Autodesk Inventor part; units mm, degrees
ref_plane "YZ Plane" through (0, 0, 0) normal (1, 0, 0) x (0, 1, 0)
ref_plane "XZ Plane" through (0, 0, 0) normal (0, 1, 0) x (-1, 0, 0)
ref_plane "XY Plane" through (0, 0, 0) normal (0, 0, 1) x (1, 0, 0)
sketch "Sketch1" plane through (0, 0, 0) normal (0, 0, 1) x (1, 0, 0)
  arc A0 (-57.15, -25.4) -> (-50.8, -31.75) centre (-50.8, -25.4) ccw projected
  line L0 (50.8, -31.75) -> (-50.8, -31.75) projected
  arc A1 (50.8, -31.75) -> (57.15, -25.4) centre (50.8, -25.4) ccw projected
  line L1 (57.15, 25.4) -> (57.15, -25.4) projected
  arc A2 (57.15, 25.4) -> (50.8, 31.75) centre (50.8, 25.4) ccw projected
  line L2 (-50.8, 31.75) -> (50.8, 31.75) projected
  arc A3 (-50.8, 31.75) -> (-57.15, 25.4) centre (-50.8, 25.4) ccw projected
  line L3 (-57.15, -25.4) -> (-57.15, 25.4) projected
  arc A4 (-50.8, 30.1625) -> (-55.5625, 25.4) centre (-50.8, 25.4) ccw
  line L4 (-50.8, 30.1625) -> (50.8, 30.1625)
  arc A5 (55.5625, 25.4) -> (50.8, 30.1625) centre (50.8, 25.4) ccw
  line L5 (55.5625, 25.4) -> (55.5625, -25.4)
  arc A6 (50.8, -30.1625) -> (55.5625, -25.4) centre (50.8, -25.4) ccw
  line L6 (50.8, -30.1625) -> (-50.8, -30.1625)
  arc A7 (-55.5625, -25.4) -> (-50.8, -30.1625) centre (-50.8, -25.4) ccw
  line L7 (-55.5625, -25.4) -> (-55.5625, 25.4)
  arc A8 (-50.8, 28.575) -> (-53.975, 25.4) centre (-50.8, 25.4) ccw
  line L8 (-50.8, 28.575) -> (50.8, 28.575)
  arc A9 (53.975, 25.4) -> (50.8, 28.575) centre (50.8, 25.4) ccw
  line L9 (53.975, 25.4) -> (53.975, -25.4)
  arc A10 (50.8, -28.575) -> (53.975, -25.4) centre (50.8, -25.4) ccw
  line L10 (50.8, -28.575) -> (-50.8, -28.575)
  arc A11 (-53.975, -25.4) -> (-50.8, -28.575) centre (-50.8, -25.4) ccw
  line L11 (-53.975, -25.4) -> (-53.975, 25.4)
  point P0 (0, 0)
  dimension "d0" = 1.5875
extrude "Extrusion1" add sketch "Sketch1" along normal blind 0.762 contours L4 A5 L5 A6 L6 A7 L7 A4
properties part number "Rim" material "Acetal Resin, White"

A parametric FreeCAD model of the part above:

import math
import FreeCAD as App
import Part
import Sketcher
Q = App.Units.Quantity

doc = App.newDocument("Part")
body = doc.addObject("PartDesign::Body", "Body")

# Sketch on XY plane
sketch1 = body.newObject("Sketcher::SketchObject", "Sketch")
sketch1.AttachmentSupport = (doc.getObject("XY_Plane"), [""])
sketch1.MapMode = "FlatFace"
sketch1.addGeometry(Part.LineSegment(App.Vector(50.8, 30.2, 0), App.Vector(-50.8, 30.2, 0)), False)
sketch1.addGeometry(Part.ArcOfCircle(Part.Circle(App.Vector(-50.8, 25.4, 0), App.Vector(0, 0, 1), 4.8), math.radians(90), math.radians(180)), False)
sketch1.addGeometry(Part.LineSegment(App.Vector(-55.6, 25.4, 0), App.Vector(-55.6, -25.4, 0)), False)
sketch1.addGeometry(Part.ArcOfCircle(Part.Circle(App.Vector(-50.8, -25.4, 0), App.Vector(0, 0, 1), 4.8), math.radians(180), math.radians(270)), False)
sketch1.addGeometry(Part.LineSegment(App.Vector(-50.8, -30.2, 0), App.Vector(50.8, -30.2, 0)), False)
sketch1.addGeometry(Part.ArcOfCircle(Part.Circle(App.Vector(50.8, -25.4, 0), App.Vector(0, 0, 1), 4.8), math.radians(-90), math.radians(0)), False)
sketch1.addGeometry(Part.LineSegment(App.Vector(55.6, -25.4, 0), App.Vector(55.6, 25.4, 0)), False)
sketch1.addGeometry(Part.ArcOfCircle(Part.Circle(App.Vector(50.8, 25.4, 0), App.Vector(0, 0, 1), 4.8), math.radians(0), math.radians(90)), False)
sketch1.addGeometry(Part.ArcOfCircle(Part.Circle(App.Vector(-50.8, 25.4, 0), App.Vector(0, 0, 1), 3.2), math.radians(90), math.radians(180)), False)
sketch1.addGeometry(Part.LineSegment(App.Vector(-50.8, 28.6, 0), App.Vector(50.8, 28.6, 0)), False)
sketch1.addGeometry(Part.ArcOfCircle(Part.Circle(App.Vector(50.8, 25.4, 0), App.Vector(0, 0, 1), 3.2), math.radians(0), math.radians(90)), False)
sketch1.addGeometry(Part.LineSegment(App.Vector(54, 25.4, 0), App.Vector(54, -25.4, 0)), False)
sketch1.addGeometry(Part.ArcOfCircle(Part.Circle(App.Vector(50.8, -25.4, 0), App.Vector(0, 0, 1), 3.2), math.radians(-90), math.radians(0)), False)
sketch1.addGeometry(Part.LineSegment(App.Vector(50.8, -28.6, 0), App.Vector(-50.8, -28.6, 0)), False)
sketch1.addGeometry(Part.ArcOfCircle(Part.Circle(App.Vector(-50.8, -25.4, 0), App.Vector(0, 0, 1), 3.2), math.radians(180), math.radians(270)), False)
sketch1.addGeometry(Part.LineSegment(App.Vector(-54, -25.4, 0), App.Vector(-54, 25.4, 0)), False)
sketch1.addConstraint(Sketcher.Constraint("Tangent", 0, 2, 1, 1))
sketch1.addConstraint(Sketcher.Constraint("Tangent", 1, 2, 2, 1))
sketch1.addConstraint(Sketcher.Constraint("Tangent", 2, 2, 3, 1))
sketch1.addConstraint(Sketcher.Constraint("Tangent", 3, 2, 4, 1))
sketch1.addConstraint(Sketcher.Constraint("Tangent", 4, 2, 5, 1))
sketch1.addConstraint(Sketcher.Constraint("Tangent", 5, 2, 6, 1))
sketch1.addConstraint(Sketcher.Constraint("Tangent", 6, 2, 7, 1))
sketch1.addConstraint(Sketcher.Constraint("Tangent", 7, 2, 0, 1))
sketch1.addConstraint(Sketcher.Constraint("Tangent", 8, 1, 9, 1))
sketch1.addConstraint(Sketcher.Constraint("Tangent", 9, 2, 10, 2))
sketch1.addConstraint(Sketcher.Constraint("Tangent", 10, 1, 11, 1))
sketch1.addConstraint(Sketcher.Constraint("Tangent", 11, 2, 12, 2))
sketch1.addConstraint(Sketcher.Constraint("Tangent", 12, 1, 13, 1))
sketch1.addConstraint(Sketcher.Constraint("Tangent", 13, 2, 14, 2))
sketch1.addConstraint(Sketcher.Constraint("Tangent", 14, 1, 15, 1))
sketch1.addConstraint(Sketcher.Constraint("Tangent", 15, 2, 8, 2))
sketch1.addConstraint(Sketcher.Constraint("Horizontal", 0))
sketch1.addConstraint(Sketcher.Constraint("Vertical", 2))
sketch1.addConstraint(Sketcher.Constraint("Horizontal", 4))
sketch1.addConstraint(Sketcher.Constraint("Vertical", 6))
sketch1.addConstraint(Sketcher.Constraint("Horizontal", 9))
sketch1.addConstraint(Sketcher.Constraint("Vertical", 11))
sketch1.addConstraint(Sketcher.Constraint("Horizontal", 13))
sketch1.addConstraint(Sketcher.Constraint("Vertical", 15))
sketch1.addConstraint(Sketcher.Constraint("Coincident", 8, 3, 1, 3))
sketch1.addConstraint(Sketcher.Constraint("Coincident", 10, 3, 7, 3))
sketch1.addConstraint(Sketcher.Constraint("Coincident", 12, 3, 5, 3))
sketch1.addConstraint(Sketcher.Constraint("Equal", 1, 3))
sketch1.addConstraint(Sketcher.Constraint("Equal", 3, 5))
sketch1.addConstraint(Sketcher.Constraint("Equal", 5, 7))
sketch1.addConstraint(Sketcher.Constraint("Equal", 12, 14))
sketch1.addConstraint(Sketcher.Constraint("Symmetric", 1, 3, 5, 3, -1, 1))
sketch1.addConstraint(Sketcher.Constraint("DistanceX", 0, 2, 0, 1, Q("4 in")))
sketch1.addConstraint(Sketcher.Constraint("DistanceY", 2, 2, 2, 1, Q("2 in")))
sketch1.addConstraint(Sketcher.Constraint("Radius", 1, Q("0.1875 in")))
sketch1.addConstraint(Sketcher.Constraint("Radius", 8, Q("0.125 in")))
pad1 = body.newObject("PartDesign::Pad", "Pad")
pad1.Profile = sketch1
pad1.Length = Q("0.03 in")

doc.recompute()
